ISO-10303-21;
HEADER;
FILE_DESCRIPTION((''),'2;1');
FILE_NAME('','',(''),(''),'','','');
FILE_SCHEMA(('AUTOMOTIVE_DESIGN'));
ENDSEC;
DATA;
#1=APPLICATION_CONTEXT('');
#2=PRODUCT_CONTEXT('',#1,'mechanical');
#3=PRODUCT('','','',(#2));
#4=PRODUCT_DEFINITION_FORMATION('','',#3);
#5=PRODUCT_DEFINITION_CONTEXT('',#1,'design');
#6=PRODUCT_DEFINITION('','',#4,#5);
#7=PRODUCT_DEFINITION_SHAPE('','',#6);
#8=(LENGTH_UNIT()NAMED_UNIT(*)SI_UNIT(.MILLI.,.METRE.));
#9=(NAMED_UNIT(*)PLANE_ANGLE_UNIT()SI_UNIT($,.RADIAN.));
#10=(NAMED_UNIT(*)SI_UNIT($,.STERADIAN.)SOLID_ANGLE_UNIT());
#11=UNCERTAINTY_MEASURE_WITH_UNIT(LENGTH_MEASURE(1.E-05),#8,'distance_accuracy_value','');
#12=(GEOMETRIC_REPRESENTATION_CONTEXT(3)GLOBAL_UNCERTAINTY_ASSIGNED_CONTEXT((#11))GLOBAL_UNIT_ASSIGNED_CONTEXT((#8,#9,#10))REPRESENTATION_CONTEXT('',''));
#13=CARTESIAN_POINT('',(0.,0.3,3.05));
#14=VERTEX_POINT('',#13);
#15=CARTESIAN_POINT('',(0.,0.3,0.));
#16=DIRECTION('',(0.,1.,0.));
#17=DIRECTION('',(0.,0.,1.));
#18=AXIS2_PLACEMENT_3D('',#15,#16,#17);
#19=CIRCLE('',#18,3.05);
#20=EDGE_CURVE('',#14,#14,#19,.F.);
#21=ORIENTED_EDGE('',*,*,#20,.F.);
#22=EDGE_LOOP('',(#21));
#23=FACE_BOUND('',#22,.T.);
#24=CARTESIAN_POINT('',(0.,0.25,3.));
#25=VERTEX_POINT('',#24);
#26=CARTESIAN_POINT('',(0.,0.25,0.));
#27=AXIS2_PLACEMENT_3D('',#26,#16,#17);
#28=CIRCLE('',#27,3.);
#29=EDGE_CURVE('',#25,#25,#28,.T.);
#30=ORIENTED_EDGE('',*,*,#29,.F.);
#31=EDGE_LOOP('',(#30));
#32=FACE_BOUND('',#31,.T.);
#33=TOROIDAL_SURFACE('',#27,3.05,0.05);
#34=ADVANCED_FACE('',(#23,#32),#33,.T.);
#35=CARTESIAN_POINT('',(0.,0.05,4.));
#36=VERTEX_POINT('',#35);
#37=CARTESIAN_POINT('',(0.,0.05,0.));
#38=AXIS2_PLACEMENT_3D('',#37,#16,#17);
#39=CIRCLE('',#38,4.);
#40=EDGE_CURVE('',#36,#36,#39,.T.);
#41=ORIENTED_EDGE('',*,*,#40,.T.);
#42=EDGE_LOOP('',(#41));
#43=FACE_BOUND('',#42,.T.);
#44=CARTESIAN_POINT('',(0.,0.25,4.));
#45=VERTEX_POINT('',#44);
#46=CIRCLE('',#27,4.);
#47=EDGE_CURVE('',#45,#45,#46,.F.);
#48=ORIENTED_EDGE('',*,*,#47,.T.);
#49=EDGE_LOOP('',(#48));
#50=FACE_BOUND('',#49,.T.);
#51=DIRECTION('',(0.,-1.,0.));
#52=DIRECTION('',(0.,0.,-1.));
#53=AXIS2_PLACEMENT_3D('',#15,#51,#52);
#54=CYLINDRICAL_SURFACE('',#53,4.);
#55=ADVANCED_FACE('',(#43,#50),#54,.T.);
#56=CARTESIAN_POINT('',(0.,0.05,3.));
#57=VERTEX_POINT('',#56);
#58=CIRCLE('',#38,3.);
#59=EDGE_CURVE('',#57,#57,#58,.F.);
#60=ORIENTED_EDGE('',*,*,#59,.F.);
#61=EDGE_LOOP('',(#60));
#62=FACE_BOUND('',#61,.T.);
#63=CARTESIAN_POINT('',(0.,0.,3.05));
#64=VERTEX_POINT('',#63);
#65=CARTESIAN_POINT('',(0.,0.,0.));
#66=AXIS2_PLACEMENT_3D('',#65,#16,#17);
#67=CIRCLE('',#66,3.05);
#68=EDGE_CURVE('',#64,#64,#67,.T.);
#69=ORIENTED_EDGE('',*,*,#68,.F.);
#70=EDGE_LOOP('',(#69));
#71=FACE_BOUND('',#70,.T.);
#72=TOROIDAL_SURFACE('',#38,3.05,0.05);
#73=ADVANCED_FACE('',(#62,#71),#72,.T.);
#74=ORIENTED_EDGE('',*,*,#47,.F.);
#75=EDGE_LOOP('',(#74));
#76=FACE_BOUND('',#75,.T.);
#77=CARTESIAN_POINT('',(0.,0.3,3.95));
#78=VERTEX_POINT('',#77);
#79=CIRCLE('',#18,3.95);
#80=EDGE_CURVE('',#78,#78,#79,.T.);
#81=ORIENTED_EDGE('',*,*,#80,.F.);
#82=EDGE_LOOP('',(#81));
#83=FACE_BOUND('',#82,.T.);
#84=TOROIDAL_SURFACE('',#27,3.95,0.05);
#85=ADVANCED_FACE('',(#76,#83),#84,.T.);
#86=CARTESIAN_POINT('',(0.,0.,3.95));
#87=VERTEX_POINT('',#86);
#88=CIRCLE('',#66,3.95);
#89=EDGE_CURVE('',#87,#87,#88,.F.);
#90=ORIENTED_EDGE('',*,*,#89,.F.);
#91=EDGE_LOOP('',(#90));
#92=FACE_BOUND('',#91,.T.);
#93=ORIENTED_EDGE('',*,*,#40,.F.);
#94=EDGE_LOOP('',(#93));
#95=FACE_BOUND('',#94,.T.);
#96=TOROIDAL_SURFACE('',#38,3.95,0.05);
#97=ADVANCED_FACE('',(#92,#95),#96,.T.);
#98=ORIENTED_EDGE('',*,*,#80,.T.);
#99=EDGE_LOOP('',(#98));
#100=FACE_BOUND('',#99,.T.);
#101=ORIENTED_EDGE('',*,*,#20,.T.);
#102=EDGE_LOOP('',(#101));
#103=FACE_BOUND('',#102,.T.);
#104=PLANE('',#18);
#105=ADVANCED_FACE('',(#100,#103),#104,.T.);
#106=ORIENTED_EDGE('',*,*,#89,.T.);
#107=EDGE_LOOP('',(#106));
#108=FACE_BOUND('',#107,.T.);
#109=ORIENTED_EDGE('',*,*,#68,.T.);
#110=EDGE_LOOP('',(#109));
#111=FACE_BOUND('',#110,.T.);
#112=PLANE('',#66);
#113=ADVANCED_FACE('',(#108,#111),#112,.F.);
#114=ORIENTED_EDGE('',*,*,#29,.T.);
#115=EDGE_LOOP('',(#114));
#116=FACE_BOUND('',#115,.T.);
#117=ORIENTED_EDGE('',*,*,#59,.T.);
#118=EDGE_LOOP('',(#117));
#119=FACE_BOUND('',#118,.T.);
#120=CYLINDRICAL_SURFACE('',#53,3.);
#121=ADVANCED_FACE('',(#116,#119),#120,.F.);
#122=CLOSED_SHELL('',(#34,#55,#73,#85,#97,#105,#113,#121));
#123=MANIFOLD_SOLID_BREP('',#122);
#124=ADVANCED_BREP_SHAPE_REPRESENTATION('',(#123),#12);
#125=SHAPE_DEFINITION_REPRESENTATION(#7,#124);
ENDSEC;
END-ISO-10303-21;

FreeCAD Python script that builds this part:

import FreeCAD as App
import Part
import Sketcher
Q = App.Units.Quantity


def edges_at(feature, points):
    """Names of the edges that pass closest to the given points."""
    edges = feature.Shape.Edges
    near = lambda p: min(range(len(edges)), key=lambda i: edges[i].distToShape(Part.Vertex(*p))[0])
    return sorted({f"Edge{near(p) + 1}" for p in points})

doc = App.newDocument("Part")
body = doc.addObject("PartDesign::Body", "Body")

# Sketch on XZ plane
sketch1 = body.newObject("Sketcher::SketchObject", "Sketch")
sketch1.AttachmentSupport = (doc.getObject("XZ_Plane"), [""])
sketch1.MapMode = "FlatFace"
sketch1.addGeometry(Part.Circle(App.Vector(0, 0, 0), App.Vector(0, 0, 1), 4), False)
sketch1.addGeometry(Part.Circle(App.Vector(0, 0, 0), App.Vector(0, 0, 1), 3), False)
sketch1.addConstraint(Sketcher.Constraint("Coincident", 0, 3, -1, 1))
sketch1.addConstraint(Sketcher.Constraint("Coincident", 1, 3, -1, 1))
sketch1.addConstraint(Sketcher.Constraint("Diameter", 0, Q("8 mm")))
sketch1.addConstraint(Sketcher.Constraint("Diameter", 1, Q("6 mm")))
pad1 = body.newObject("PartDesign::Pad", "Pad")
pad1.Profile = sketch1
pad1.Length = 0.3
pad1.Reversed = True
doc.recompute()

fillet = body.newObject("PartDesign::Fillet", "Fillet")
fillet.Base = (pad1, edges_at(pad1, [
    (0, 0, -4),
    (0, 0.3, -4),
    (0, 0, -3),
    (0, 0.3, -3),
]))
fillet.Radius = 0.05

doc.recompute()
